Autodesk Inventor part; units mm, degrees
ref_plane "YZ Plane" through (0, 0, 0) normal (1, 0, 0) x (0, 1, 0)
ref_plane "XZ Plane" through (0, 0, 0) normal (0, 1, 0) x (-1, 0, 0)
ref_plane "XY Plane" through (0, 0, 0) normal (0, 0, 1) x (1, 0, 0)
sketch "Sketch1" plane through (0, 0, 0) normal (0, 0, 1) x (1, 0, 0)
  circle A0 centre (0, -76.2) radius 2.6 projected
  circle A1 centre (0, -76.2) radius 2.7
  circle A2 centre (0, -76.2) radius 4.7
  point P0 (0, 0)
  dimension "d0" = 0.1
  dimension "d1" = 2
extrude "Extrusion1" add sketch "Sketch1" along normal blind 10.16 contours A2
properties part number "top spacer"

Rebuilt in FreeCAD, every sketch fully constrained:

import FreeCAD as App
import Part
import Sketcher

doc = App.newDocument("Part")
body = doc.addObject("PartDesign::Body", "Body")

# Sketch on XY plane
sketch1 = body.newObject("Sketcher::SketchObject", "Sketch")
sketch1.AttachmentSupport = (doc.getObject("XY_Plane"), [""])
sketch1.MapMode = "FlatFace"
sketch1.addGeometry([
    Part.Circle(App.Vector(0, -76.2, 0), App.Vector(0, 0, 1), 4.7),
    Part.Circle(App.Vector(0, -76.2, 0), App.Vector(0, 0, 1), 2.7),
], False)
sketch1.addConstraint([
    Sketcher.Constraint("Coincident", 1, 3, 0, 3),
    Sketcher.Constraint("PointOnObject", 0, 3, -2),
    Sketcher.Constraint("Diameter", 0, 9.4),
    Sketcher.Constraint("Diameter", 1, 5.4),
    Sketcher.Constraint("DistanceY", 0, 3, -1, 1, 76.2),
])
pad1 = body.newObject("PartDesign::Pad", "Pad")
pad1.Profile = sketch1
pad1.Length = 10.16

doc.recompute()
